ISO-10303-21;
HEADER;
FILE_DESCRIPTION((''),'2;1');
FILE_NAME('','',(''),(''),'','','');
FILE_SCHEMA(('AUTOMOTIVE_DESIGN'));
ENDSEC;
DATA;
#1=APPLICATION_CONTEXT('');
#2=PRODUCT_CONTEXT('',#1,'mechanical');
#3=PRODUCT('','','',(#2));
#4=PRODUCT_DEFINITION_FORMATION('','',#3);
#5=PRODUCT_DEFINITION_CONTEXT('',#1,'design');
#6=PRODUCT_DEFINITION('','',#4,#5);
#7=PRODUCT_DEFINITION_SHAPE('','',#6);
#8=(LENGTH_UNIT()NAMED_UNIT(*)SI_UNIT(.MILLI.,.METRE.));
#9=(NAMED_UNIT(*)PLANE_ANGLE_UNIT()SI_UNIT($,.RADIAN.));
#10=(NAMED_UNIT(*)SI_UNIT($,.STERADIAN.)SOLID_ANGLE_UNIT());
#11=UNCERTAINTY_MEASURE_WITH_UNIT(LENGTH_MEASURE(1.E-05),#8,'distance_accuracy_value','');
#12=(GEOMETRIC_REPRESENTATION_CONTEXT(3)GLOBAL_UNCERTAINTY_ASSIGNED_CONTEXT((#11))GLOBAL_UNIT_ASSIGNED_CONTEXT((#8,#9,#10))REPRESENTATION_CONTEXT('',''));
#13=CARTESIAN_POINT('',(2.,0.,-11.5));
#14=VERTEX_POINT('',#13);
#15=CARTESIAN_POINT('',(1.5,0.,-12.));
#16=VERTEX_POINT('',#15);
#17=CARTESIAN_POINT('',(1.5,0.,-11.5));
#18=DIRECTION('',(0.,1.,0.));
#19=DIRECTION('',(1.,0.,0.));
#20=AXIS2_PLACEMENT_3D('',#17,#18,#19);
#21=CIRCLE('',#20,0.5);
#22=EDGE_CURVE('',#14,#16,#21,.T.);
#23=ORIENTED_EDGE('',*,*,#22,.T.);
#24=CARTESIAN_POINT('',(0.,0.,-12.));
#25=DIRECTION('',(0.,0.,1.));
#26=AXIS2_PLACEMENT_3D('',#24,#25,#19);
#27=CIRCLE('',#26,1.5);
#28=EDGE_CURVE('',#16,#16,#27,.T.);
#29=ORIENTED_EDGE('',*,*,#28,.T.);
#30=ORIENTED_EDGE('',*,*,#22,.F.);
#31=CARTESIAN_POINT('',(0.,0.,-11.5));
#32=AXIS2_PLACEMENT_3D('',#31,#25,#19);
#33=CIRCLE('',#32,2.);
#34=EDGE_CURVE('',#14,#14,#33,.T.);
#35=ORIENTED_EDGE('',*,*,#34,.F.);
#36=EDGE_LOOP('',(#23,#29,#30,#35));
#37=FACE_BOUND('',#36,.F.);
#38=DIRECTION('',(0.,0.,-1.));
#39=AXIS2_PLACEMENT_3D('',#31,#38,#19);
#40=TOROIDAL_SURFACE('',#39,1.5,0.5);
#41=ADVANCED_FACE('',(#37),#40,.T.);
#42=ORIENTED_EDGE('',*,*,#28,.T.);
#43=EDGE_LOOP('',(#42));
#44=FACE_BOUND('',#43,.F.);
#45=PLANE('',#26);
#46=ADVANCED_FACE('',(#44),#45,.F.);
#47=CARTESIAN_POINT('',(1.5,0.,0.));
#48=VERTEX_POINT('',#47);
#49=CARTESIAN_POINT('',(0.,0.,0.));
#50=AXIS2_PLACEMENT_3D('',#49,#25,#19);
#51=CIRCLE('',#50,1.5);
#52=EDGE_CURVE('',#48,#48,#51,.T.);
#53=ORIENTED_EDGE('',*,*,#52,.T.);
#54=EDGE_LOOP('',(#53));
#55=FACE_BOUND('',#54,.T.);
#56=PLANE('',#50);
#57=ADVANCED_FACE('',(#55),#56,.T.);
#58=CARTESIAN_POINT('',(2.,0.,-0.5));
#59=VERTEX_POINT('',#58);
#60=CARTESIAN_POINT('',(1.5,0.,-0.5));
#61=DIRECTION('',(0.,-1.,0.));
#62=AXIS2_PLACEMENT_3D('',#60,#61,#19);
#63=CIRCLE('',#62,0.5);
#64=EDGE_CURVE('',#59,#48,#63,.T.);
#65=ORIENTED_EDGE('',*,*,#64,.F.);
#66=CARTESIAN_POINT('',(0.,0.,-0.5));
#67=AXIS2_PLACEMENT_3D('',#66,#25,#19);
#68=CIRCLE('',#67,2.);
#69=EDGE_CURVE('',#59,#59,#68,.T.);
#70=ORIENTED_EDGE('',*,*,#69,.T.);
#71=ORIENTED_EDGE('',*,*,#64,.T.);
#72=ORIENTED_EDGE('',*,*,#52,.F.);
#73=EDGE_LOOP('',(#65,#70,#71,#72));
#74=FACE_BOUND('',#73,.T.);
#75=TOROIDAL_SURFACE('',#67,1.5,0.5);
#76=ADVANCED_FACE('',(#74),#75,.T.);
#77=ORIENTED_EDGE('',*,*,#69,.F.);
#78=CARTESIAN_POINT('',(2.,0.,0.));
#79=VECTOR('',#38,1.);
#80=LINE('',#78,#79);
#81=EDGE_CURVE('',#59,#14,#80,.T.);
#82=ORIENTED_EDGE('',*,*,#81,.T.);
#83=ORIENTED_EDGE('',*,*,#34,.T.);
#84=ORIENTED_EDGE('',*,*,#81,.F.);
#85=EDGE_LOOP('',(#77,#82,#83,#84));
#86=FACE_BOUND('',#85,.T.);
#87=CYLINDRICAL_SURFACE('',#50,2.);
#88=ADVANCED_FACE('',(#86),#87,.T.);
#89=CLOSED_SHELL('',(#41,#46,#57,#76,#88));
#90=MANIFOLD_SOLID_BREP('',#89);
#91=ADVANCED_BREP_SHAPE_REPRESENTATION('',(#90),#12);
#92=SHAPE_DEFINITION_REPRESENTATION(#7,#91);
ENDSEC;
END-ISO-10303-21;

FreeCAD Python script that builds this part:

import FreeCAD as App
import Part
import Sketcher
from FreeCAD import Vector
Q = App.Units.Quantity


def edges_at(feature, points):
    """Names of the edges that pass closest to the given points."""
    edges = feature.Shape.Edges
    near = lambda p: min(range(len(edges)), key=lambda i: edges[i].distToShape(Part.Vertex(*p))[0])
    return sorted({f"Edge{near(p) + 1}" for p in points})

doc = App.newDocument("Part")
body = doc.addObject("PartDesign::Body", "Body")

# Sketch on XY plane
sketch1 = body.newObject("Sketcher::SketchObject", "Sketch")
sketch1.AttachmentSupport = (doc.getObject("XY_Plane"), [""])
sketch1.MapMode = "FlatFace"
sketch1.addGeometry(Part.Circle(Vector(0, 0, 0), Vector(0, 0, 1), 2), False)
sketch1.addConstraint(Sketcher.Constraint("Coincident", 0, 3, -1, 1))
sketch1.addConstraint(Sketcher.Constraint("Diameter", 0, Q("4 mm")))
pad1 = body.newObject("PartDesign::Pad", "Pad")
pad1.Profile = sketch1
pad1.Length = 12
pad1.Reversed = True
doc.recompute()

fillet = body.newObject("PartDesign::Fillet", "Fillet")
fillet.Base = (pad1, edges_at(pad1, [(-2, 0, 0), (-2, 0, -12)]))
fillet.Radius = 0.5

doc.recompute()
